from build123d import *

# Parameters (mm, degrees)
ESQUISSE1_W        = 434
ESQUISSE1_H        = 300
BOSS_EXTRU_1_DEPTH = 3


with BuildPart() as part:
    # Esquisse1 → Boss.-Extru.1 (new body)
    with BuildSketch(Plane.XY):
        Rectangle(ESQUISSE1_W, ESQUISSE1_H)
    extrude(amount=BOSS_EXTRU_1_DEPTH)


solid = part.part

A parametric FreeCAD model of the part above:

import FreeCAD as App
import Part
import Sketcher
from FreeCAD import Vector
Q = App.Units.Quantity


def add_polygon(sketch, points):
    """Adds a closed chain of lines whose ends are joined by coincident constraints."""
    first, n = sketch.GeometryCount, len(points)
    for a, b in zip(points, points[1:] + points[:1]):
        sketch.addGeometry(Part.LineSegment(App.Vector(*a, 0), App.Vector(*b, 0)), False)
    for i in range(n):
        sketch.addConstraint(Sketcher.Constraint("Coincident", first + i, 2, first + (i + 1) % n, 1))

doc = App.newDocument("Part")
body = doc.addObject("PartDesign::Body", "Body")

# Sketch on XY plane
sketch1 = doc.addObject("Sketcher::SketchObject", "Sketch")
body.addObject(sketch1)
sketch1.AttachmentSupport = (doc.XY_Plane, [""])
sketch1.MapMode = "FlatFace"
add_polygon(sketch1, [(-217, 150), (-217, -150), (217, -150), (217, 150)])  # lines 0-3
sketch1.addConstraint(Sketcher.Constraint("Vertical", 0))
sketch1.addConstraint(Sketcher.Constraint("Horizontal", 1))
sketch1.addConstraint(Sketcher.Constraint("Vertical", 2))
sketch1.addConstraint(Sketcher.Constraint("Horizontal", 3))
sketch1.addConstraint(Sketcher.Constraint("Symmetric", 0, 2, 2, 2, -1, 1))
sketch1.addConstraint(Sketcher.Constraint("DistanceX", 1, 1, 1, 2, Q("434 mm")))
sketch1.addConstraint(Sketcher.Constraint("DistanceY", 0, 2, 0, 1, Q("300 mm")))
pad1 = doc.addObject("PartDesign::Pad", "Pad")
body.addObject(pad1)
pad1.Profile = sketch1
pad1.Length = 3

doc.recompute()
